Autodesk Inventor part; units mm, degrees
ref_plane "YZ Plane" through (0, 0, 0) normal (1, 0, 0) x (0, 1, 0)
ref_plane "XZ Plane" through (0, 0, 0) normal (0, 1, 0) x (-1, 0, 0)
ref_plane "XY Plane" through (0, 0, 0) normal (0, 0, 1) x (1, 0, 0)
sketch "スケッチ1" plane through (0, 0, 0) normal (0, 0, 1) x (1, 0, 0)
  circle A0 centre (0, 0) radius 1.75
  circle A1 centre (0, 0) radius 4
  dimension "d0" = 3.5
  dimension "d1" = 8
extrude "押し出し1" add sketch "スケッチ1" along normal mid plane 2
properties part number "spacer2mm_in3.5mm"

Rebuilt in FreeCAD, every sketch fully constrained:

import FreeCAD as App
import Part
import Sketcher
Q = App.Units.Quantity

doc = App.newDocument("Part")
params = doc.addObject("Spreadsheet::Sheet", "Params")
for row, (alias, value) in enumerate([
    ("sketch1_diameter", "8 mm"),
    ("sketch1_diameter2", "3.5 mm"),
    ("pad1_length", "2 mm"),
], start=1):
    params.set(f"A{row}", alias)
    params.set(f"B{row}", "=" + value)
    params.setAlias(f"B{row}", alias)

body = doc.addObject("PartDesign::Body", "Body")

sketch1 = body.newObject("Sketcher::SketchObject", "Sketch")
sketch1.AttachmentSupport = (doc.getObject("XY_Plane"), [""])
sketch1.MapMode = "FlatFace"
sketch1.addGeometry([
    Part.Circle(App.Vector(0, 0, 0), App.Vector(0, 0, 1), 4),
    Part.Circle(App.Vector(0, 0, 0), App.Vector(0, 0, 1), 1.8),
], False)
sketch1.addConstraint([
    Sketcher.Constraint("Coincident", 0, 3, -1, 1),
    Sketcher.Constraint("Coincident", 1, 3, -1, 1),
    Sketcher.Constraint("Diameter", 0, Q("8 mm")),
    Sketcher.Constraint("Diameter", 1, Q("3.5 mm")),
])
sketch1.setExpression("Constraints[2]", "Params.sketch1_diameter")
sketch1.setExpression("Constraints[3]", "Params.sketch1_diameter2")
pad1 = body.newObject("PartDesign::Pad", "Pad")
pad1.Profile = sketch1
pad1.setExpression("Length", "Params.pad1_length")
pad1.Midplane = True

doc.recompute()
